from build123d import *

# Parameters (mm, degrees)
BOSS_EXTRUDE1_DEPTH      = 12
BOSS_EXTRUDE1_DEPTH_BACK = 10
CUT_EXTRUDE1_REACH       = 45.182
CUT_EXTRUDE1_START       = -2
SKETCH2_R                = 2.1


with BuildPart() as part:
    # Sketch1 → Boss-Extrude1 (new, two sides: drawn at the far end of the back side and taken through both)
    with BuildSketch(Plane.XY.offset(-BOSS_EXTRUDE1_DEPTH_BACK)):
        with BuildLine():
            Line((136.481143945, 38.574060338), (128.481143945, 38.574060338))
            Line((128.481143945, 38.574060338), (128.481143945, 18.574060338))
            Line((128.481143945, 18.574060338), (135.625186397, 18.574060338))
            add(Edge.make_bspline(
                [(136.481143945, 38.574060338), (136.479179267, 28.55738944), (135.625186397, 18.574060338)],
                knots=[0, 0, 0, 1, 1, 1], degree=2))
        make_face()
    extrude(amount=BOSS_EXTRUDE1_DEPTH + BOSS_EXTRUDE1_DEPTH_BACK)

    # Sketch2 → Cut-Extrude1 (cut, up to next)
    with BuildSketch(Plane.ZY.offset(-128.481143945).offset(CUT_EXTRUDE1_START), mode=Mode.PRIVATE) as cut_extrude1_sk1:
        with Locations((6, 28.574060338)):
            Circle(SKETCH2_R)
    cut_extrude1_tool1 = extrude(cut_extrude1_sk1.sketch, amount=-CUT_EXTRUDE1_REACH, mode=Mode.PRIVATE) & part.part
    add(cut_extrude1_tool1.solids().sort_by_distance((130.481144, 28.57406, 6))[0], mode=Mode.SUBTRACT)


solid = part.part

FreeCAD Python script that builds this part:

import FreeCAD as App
import Part
import Sketcher
from FreeCAD import Vector

doc = App.newDocument("Part")
params = doc.addObject("Spreadsheet::Sheet", "Params")
for row, (alias, value) in enumerate([
    ("sketch1_width", "8 mm"),
    ("pad1_length", "12 mm"),
    ("pad1_length2", "10 mm"),
    ("sketch2_diameter", "4.2 mm"),
], start=1):
    params.set(f"A{row}", alias)
    params.set(f"B{row}", "=" + value)
    params.setAlias(f"B{row}", alias)

body = doc.addObject("PartDesign::Body", "Body")

# Sketch on XY plane
sketch1 = doc.addObject("Sketcher::SketchObject", "Sketch")
body.addObject(sketch1)
sketch1.AttachmentSupport = (doc.XY_Plane, [""])
sketch1.MapMode = "FlatFace"
sketch1.addGeometry(Part.LineSegment(Vector(136.481144, 38.57406, 0), Vector(128.481144, 38.57406, 0)), False)
sketch1.addGeometry(Part.LineSegment(Vector(128.481144, 38.57406, 0), Vector(128.481144, 18.57406, 0)), False)
sketch1.addGeometry(Part.LineSegment(Vector(128.481144, 18.57406, 0), Vector(135.625186, 18.57406, 0)), False)
sketch1.addGeometry(Part.BSplineCurve([Vector(136.481144, 38.57406, 0), Vector(136.479179, 28.557389, 0), Vector(135.625186, 18.57406, 0)], [3, 3], [0, 1], False, 2, [1, 1, 1], False), False)
sketch1.addConstraint(Sketcher.Constraint("Block", 3))
sketch1.addConstraint(Sketcher.Constraint("Coincident", 0, 2, 1, 1))
sketch1.addConstraint(Sketcher.Constraint("Coincident", 1, 2, 2, 1))
sketch1.addConstraint(Sketcher.Constraint("Coincident", 2, 2, 3, 2))
sketch1.addConstraint(Sketcher.Constraint("Coincident", 3, 1, 0, 1))
sketch1.addConstraint(Sketcher.Constraint("Horizontal", 0))
sketch1.addConstraint(Sketcher.Constraint("Vertical", 1))
sketch1.addConstraint(Sketcher.Constraint("Horizontal", 2))
sketch1.addConstraint(Sketcher.Constraint("DistanceX", 0, 2, 0, 1, 8.0))
sketch1.setExpression("Constraints[8]", "Params.sketch1_width")
pad1 = doc.addObject("PartDesign::Pad", "Pad")
body.addObject(pad1)
pad1.Profile = sketch1
pad1.Type = "TwoLengths"
pad1.setExpression("Length", "Params.pad1_length")
pad1.setExpression("Length2", "Params.pad1_length2")

# Sketch on YZ plane
sketch2 = doc.addObject("Sketcher::SketchObject", "Sketch001")
body.addObject(sketch2)
sketch2.AttachmentSupport = (doc.YZ_Plane, [""])
sketch2.MapMode = "FlatFace"
sketch2.AttachmentOffset = App.Placement(Vector(0, 0, 130.481144), App.Rotation())
sketch2.addGeometry(Part.Circle(Vector(28.57406, 6, 0), Vector(0, 0, 1), 2.1), False)
sketch2.addConstraint(Sketcher.Constraint("Diameter", 0, 4.2))
sketch2.addConstraint(Sketcher.Constraint("DistanceY", -1, 1, 0, 3, 6.0))
sketch2.addConstraint(Sketcher.Constraint("DistanceX", -1, 1, 0, 3, 28.57406))
sketch2.setExpression("Constraints[0]", "Params.sketch2_diameter")
pocket1 = doc.addObject("PartDesign::Pocket", "Pocket")
body.addObject(pocket1)
pocket1.Profile = sketch2
pocket1.Type = "UpToFirst"
pocket1.Reversed = True

doc.recompute()
